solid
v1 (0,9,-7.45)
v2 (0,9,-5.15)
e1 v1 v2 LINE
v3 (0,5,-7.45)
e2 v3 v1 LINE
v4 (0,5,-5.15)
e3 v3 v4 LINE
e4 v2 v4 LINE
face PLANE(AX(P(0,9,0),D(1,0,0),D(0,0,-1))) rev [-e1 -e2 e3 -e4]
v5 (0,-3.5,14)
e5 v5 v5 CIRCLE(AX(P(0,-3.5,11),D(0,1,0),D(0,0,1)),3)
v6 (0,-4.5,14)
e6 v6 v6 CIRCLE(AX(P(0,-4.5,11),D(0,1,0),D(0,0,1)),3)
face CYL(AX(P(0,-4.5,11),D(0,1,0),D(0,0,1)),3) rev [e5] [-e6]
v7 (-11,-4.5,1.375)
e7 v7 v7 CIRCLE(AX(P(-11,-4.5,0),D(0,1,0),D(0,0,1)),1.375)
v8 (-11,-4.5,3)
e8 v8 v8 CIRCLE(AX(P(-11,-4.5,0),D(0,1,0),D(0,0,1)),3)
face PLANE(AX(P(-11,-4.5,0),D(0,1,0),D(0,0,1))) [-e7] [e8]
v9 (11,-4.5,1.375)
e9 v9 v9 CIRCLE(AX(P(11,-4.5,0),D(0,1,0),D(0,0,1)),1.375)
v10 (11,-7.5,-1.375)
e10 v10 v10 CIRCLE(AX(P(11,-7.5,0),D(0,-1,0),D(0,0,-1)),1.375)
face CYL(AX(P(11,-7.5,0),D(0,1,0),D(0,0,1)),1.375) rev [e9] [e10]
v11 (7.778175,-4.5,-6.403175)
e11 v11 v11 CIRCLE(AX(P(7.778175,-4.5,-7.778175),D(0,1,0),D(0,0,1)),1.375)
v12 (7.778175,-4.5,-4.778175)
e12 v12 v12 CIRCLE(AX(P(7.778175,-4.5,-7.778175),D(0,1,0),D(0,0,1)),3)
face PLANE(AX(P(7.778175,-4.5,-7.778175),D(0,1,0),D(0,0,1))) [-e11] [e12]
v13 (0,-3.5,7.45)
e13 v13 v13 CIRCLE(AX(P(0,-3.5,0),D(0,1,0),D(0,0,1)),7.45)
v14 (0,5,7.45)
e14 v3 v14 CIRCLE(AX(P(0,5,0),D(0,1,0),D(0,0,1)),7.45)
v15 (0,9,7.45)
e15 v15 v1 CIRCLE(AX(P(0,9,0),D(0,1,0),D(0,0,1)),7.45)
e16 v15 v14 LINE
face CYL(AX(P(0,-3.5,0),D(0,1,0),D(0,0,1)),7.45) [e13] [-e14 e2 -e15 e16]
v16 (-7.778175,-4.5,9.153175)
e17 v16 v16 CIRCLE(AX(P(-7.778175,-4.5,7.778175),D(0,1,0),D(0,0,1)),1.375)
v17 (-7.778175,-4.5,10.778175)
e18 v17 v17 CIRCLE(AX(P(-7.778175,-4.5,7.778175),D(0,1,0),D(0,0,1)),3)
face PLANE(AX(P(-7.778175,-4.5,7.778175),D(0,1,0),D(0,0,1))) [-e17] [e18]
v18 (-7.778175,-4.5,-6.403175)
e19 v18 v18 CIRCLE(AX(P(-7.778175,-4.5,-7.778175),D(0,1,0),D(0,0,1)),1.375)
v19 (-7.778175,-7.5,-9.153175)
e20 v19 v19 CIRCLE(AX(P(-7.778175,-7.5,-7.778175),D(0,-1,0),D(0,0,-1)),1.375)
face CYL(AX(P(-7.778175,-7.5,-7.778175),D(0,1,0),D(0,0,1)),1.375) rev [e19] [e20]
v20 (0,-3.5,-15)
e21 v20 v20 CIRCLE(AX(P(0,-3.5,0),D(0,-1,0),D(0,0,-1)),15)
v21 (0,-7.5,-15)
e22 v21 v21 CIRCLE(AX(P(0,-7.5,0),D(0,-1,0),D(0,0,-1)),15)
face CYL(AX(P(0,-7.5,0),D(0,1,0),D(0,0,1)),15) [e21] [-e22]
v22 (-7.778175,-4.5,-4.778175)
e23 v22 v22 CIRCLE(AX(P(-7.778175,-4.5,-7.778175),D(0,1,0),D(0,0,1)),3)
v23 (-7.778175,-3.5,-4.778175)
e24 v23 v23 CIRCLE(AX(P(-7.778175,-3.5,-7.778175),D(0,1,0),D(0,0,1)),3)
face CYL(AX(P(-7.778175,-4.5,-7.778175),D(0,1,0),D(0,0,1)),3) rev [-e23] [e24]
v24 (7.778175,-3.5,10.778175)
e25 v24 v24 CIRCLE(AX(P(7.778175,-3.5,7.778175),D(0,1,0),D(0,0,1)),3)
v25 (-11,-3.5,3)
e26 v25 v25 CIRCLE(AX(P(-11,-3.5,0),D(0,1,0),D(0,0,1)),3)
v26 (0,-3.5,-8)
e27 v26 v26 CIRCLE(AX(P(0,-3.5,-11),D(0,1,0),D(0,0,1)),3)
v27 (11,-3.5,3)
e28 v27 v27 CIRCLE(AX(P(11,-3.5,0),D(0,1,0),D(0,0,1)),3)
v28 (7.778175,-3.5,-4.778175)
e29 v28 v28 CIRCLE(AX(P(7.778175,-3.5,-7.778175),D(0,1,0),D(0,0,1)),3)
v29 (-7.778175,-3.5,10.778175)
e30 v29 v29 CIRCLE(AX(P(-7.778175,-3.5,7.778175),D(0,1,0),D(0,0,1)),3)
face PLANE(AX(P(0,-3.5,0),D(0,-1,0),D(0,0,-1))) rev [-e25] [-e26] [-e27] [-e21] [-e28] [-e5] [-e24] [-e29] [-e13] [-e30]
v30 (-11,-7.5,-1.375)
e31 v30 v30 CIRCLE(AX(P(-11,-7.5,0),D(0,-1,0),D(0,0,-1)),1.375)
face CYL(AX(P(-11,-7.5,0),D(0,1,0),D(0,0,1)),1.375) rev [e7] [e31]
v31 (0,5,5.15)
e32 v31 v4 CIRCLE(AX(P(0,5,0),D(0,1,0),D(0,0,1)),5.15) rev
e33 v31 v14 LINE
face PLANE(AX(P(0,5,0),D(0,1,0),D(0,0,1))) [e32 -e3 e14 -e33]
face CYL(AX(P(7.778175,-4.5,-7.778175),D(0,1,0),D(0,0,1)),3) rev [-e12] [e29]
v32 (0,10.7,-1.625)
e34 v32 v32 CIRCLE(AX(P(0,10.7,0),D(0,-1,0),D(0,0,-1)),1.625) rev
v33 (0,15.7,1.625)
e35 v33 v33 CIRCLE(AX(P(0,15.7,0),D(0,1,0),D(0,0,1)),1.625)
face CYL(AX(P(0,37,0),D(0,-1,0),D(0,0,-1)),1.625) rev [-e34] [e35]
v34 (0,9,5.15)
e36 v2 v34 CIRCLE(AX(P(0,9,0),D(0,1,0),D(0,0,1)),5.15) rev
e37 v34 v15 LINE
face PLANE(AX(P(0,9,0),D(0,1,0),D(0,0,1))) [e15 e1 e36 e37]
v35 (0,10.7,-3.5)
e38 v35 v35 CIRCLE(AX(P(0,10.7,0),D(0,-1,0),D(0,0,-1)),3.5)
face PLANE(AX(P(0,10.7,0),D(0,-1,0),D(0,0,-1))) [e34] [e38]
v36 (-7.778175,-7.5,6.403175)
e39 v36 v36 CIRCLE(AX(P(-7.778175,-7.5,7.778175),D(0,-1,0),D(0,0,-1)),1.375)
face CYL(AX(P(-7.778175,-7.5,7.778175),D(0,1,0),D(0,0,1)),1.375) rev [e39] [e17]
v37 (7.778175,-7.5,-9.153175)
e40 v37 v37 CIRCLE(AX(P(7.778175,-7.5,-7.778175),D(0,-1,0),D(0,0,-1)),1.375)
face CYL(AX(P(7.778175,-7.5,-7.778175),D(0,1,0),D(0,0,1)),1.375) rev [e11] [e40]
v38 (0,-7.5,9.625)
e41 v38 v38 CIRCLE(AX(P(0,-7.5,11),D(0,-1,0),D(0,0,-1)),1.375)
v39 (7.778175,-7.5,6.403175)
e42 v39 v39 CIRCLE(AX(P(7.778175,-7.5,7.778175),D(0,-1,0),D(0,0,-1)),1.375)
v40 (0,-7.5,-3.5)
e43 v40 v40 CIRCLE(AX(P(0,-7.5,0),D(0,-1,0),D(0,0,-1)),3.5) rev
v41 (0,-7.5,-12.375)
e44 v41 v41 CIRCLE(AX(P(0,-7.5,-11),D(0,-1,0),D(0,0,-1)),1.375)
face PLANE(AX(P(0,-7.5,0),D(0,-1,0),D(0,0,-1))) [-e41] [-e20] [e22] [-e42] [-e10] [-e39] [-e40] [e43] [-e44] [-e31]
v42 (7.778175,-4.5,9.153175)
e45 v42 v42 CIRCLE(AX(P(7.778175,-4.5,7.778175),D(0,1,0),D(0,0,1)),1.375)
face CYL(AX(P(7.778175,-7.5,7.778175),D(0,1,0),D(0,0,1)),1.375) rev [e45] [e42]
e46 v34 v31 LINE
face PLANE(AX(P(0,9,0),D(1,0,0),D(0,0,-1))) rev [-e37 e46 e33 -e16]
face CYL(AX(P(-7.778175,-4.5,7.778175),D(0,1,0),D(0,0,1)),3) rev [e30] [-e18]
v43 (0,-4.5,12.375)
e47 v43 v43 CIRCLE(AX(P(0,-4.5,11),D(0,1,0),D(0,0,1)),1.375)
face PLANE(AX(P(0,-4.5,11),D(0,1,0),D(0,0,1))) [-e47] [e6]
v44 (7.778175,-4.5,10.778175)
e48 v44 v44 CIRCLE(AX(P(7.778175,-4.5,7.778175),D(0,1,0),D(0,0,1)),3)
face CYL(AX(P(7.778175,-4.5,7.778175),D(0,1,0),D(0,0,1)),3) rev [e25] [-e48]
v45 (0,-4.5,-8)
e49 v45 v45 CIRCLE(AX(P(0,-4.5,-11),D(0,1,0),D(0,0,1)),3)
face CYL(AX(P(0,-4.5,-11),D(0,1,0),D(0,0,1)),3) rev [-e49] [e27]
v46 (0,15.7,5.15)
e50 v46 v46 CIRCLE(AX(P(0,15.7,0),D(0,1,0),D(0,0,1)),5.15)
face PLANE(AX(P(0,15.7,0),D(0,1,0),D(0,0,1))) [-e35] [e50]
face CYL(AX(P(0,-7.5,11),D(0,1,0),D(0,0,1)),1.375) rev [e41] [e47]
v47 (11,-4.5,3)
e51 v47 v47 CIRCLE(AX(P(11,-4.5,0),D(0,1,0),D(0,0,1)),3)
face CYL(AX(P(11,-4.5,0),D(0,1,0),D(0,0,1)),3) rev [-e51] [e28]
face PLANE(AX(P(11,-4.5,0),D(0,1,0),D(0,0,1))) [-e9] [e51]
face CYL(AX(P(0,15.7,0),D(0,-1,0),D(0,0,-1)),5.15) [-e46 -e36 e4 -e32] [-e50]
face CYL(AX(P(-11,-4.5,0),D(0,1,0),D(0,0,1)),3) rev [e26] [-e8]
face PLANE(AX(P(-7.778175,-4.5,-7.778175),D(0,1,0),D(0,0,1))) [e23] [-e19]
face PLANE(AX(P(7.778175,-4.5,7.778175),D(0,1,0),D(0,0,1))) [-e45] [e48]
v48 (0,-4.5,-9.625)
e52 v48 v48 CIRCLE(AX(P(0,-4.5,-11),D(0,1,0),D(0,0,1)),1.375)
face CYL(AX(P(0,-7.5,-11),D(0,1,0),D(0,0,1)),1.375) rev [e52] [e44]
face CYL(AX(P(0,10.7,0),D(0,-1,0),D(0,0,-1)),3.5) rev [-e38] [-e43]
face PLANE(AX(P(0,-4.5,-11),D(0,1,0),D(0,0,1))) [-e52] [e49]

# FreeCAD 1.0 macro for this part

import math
import FreeCAD as App
import Part
import Sketcher

V = App.Vector
Q = App.Units.Quantity

doc = App.newDocument("Part")
body = doc.addObject("PartDesign::Body", "Body")

sketch1 = body.newObject("Sketcher::SketchObject", "Sketch")
sketch1.AttachmentSupport = (doc.getObject("XZ_Plane"), [""])
sketch1.MapMode = "FlatFace"
sketch1.addGeometry(Part.Circle(V(0, 0, 0), V(0, 0, 1), 8), False)
sketch1.addConstraint([
    Sketcher.Constraint("Coincident", 0, 3, -1, 1),
    Sketcher.Constraint("Diameter", 0, Q("15 mm")),
])
pad1 = body.newObject("PartDesign::Pad", "Pad")
pad1.Profile = sketch1
pad1.Length = 5
pad1.Reversed = True

sketch2 = body.newObject("Sketcher::SketchObject", "Sketch001")
sketch2.AttachmentSupport = (doc.getObject("XZ_Plane"), [""])
sketch2.MapMode = "FlatFace"
sketch2.addGeometry(Part.Circle(V(0, 0, 0), V(0, 0, 1), 5), False)
sketch2.addConstraint([
    Sketcher.Constraint("Coincident", 0, 3, -1, 1),
    Sketcher.Constraint("Diameter", 0, Q("10.3 mm")),
])
pad2 = body.newObject("PartDesign::Pad", "Pad001")
pad2.Profile = sketch2
pad2.Length = 15.7
pad2.Reversed = True

sketch3 = body.newObject("Sketcher::SketchObject", "Sketch002")
sketch3.AttachmentSupport = (doc.getObject("XZ_Plane"), [""])
sketch3.MapMode = "FlatFace"
sketch3.AttachmentOffset = App.Placement(V(0, 0, -5), App.Rotation())
sketch3.addGeometry([
    Part.ArcOfCircle(Part.Circle(V(0, 0, 0), V(0, 0, 1), 7.5), math.radians(-90), math.radians(0)),
    Part.LineSegment(V(0, -7.5, 0), V(0, -5.2, 0)),
    Part.ArcOfCircle(Part.Circle(V(0, 0, 0), V(0, 0, 1), 5.2), math.radians(-90), math.radians(0)),
    Part.ArcOfCircle(Part.Circle(V(0, 0, 0), V(0, 0, 1), 5.2), math.radians(0), math.radians(90)),
    Part.LineSegment(V(0, 5.2, 0), V(0, 7.5, 0)),
    Part.ArcOfCircle(Part.Circle(V(0, 0, 0), V(0, 0, 1), 7.5), math.radians(0), math.radians(90)),
], False)
sketch3.addConstraint([
    Sketcher.Constraint("Coincident", 0, 1, 1, 1),
    Sketcher.Constraint("Coincident", 1, 2, 2, 1),
    Sketcher.Constraint("Tangent", 2, 2, 3, 1),
    Sketcher.Constraint("Coincident", 3, 2, 4, 1),
    Sketcher.Constraint("Coincident", 4, 2, 5, 2),
    Sketcher.Constraint("Tangent", 5, 1, 0, 2),
    Sketcher.Constraint("Vertical", 1),
    Sketcher.Constraint("Vertical", 4),
    Sketcher.Constraint("Coincident", 0, 3, -1, 1),
    Sketcher.Constraint("Coincident", 2, 3, -1, 1),
    Sketcher.Constraint("Equal", 2, 3),
    Sketcher.Constraint("Equal", 0, 5),
    Sketcher.Constraint("PointOnObject", 0, 1, -2),
    Sketcher.Constraint("PointOnObject", 2, 2, -1),
    Sketcher.Constraint("PointOnObject", 3, 2, -2),
    Sketcher.Constraint("PointOnObject", 5, 1, -1),
    Sketcher.Constraint("Radius", 0, Q("7.5 mm")),
    Sketcher.Constraint("Radius", 2, Q("5.15 mm")),
])
pad3 = body.newObject("PartDesign::Pad", "Pad002")
pad3.Profile = sketch3
pad3.Length = 4
pad3.Reversed = True

sketch4 = body.newObject("Sketcher::SketchObject", "Sketch003")
sketch4.AttachmentSupport = (doc.getObject("XZ_Plane"), [""])
sketch4.MapMode = "FlatFace"
sketch4.addGeometry(Part.Circle(V(0, 0, 0), V(0, 0, 1), 1.6), False)
sketch4.addConstraint([
    Sketcher.Constraint("Coincident", 0, 3, -1, 1),
    Sketcher.Constraint("Diameter", 0, Q("3.25 mm")),
])
pocket1 = body.newObject("PartDesign::Pocket", "Pocket")
pocket1.Profile = sketch4
pocket1.Length = 37

sketch5 = body.newObject("Sketcher::SketchObject", "Sketch004")
sketch5.AttachmentSupport = (doc.getObject("XZ_Plane"), [""])
sketch5.MapMode = "FlatFace"
sketch5.addGeometry(Part.Circle(V(0, 0, 0), V(0, 0, 1), 3.5), False)
sketch5.addConstraint([
    Sketcher.Constraint("Coincident", 0, 3, -1, 1),
    Sketcher.Constraint("Diameter", 0, Q("7 mm")),
])
pocket2 = body.newObject("PartDesign::Pocket", "Pocket001")
pocket2.Profile = sketch5
pocket2.Length = 10.7

sketch6 = body.newObject("Sketcher::SketchObject", "Sketch005")
sketch6.AttachmentSupport = (doc.getObject("XZ_Plane"), [""])
sketch6.MapMode = "FlatFace"
sketch6.AttachmentOffset = App.Placement(V(0, 0, 3.5), App.Rotation())
sketch6.addGeometry([
    Part.Circle(V(0, 0, 0), V(0, 0, 1), 7.5),
    Part.Circle(V(0, 0, 0), V(0, 0, 1), 3.5),
], False)
sketch6.addConstraint([
    Sketcher.Constraint("Coincident", 0, 3, -1, 1),
    Sketcher.Constraint("Coincident", 1, 3, -1, 1),
    Sketcher.Constraint("Diameter", 0, Q("15 mm")),
    Sketcher.Constraint("Diameter", 1, Q("7 mm")),
])
pad4 = body.newObject("PartDesign::Pad", "Pad003")
pad4.Profile = sketch6
pad4.Length = 3.5
pad4.Reversed = True

sketch7 = body.newObject("Sketcher::SketchObject", "Sketch006")
sketch7.AttachmentSupport = (doc.getObject("XZ_Plane"), [""])
sketch7.MapMode = "FlatFace"
sketch7.AttachmentOffset = App.Placement(V(0, 0, 7.5), App.Rotation())
sketch7.addGeometry([
    Part.Circle(V(0, 0, 0), V(0, 0, 1), 15),
    Part.Circle(V(-7.8, 7.8, 0), V(0, 0, 1), 1.4),
    Part.Circle(V(0, 11, 0), V(0, 0, 1), 1.4),
    Part.Circle(V(-11, 0, 0), V(0, 0, 1), 1.4),
    Part.Circle(V(-7.8, -7.8, 0), V(0, 0, 1), 1.4),
    Part.Circle(V(7.8, 7.8, 0), V(0, 0, 1), 1.4),
    Part.Circle(V(11, 0, 0), V(0, 0, 1), 1.4),
    Part.Circle(V(0, 0, 0), V(0, 0, 1), 3.5),
    Part.Circle(V(0, -11, 0), V(0, 0, 1), 1.4),
    Part.Circle(V(7.8, -7.8, 0), V(0, 0, 1), 1.4),
], False)
sketch7.addConstraint([
    Sketcher.Constraint("Coincident", 0, 3, -1, 1),
    Sketcher.Constraint("Coincident", 7, 3, -1, 1),
    Sketcher.Constraint("Equal", 1, 2),
    Sketcher.Constraint("Equal", 2, 3),
    Sketcher.Constraint("Equal", 3, 4),
    Sketcher.Constraint("Equal", 4, 5),
    Sketcher.Constraint("Equal", 5, 6),
    Sketcher.Constraint("Equal", 6, 8),
    Sketcher.Constraint("Equal", 8, 9),
    Sketcher.Constraint("Symmetric", 4, 3, 5, 3, -1, 1),
    Sketcher.Constraint("Symmetric", 3, 3, 6, 3, -1, 1),
    Sketcher.Constraint("Symmetric", 2, 3, 8, 3, -1, 1),
    Sketcher.Constraint("Symmetric", 1, 3, 9, 3, -1, 1),
    Sketcher.Constraint("Symmetric", 1, 3, 5, 3, -2),
    Sketcher.Constraint("PointOnObject", 2, 3, -2),
    Sketcher.Constraint("PointOnObject", 3, 3, -1),
    Sketcher.Constraint("Diameter", 0, Q("30 mm")),
    Sketcher.Constraint("Diameter", 7, Q("7 mm")),
    Sketcher.Constraint("Diameter", 1, Q("2.75 mm")),
    Sketcher.Constraint("DistanceY", -1, 1, 2, 3, Q("11 mm")),
    Sketcher.Constraint("DistanceX", 3, 3, -1, 1, Q("11 mm")),
    Sketcher.Constraint("DistanceY", 4, 3, 1, 3, Q("15.556349 mm")),
    Sketcher.Constraint("DistanceX", 1, 3, 5, 3, Q("15.556349 mm")),
])
pad5 = body.newObject("PartDesign::Pad", "Pad004")
pad5.Profile = sketch7
pad5.Length = 4
pad5.Reversed = True

sketch8 = body.newObject("Sketcher::SketchObject", "Sketch007")
sketch8.AttachmentSupport = (doc.getObject("XZ_Plane"), [""])
sketch8.MapMode = "FlatFace"
sketch8.AttachmentOffset = App.Placement(V(0, 0, 3.5), App.Rotation())
sketch8.addGeometry([
    Part.Circle(V(-11, 0, 0), V(0, 0, 1), 3),
    Part.Circle(V(-7.8, -7.8, 0), V(0, 0, 1), 3),
    Part.Circle(V(0, -11, 0), V(0, 0, 1), 3),
    Part.Circle(V(7.8, -7.8, 0), V(0, 0, 1), 3),
    Part.Circle(V(11, 0, 0), V(0, 0, 1), 3),
    Part.Circle(V(7.8, 7.8, 0), V(0, 0, 1), 3),
    Part.Circle(V(0, 11, 0), V(0, 0, 1), 3),
    Part.Circle(V(-7.8, 7.8, 0), V(0, 0, 1), 3),
], False)
sketch8.addConstraint([
    Sketcher.Constraint("Equal", 0, 1),
    Sketcher.Constraint("Equal", 1, 2),
    Sketcher.Constraint("Equal", 2, 3),
    Sketcher.Constraint("Equal", 3, 4),
    Sketcher.Constraint("Equal", 4, 5),
    Sketcher.Constraint("Equal", 5, 6),
    Sketcher.Constraint("Equal", 6, 7),
    Sketcher.Constraint("Symmetric", 0, 3, 4, 3, -1, 1),
    Sketcher.Constraint("Symmetric", 1, 3, 5, 3, -1, 1),
    Sketcher.Constraint("Symmetric", 2, 3, 6, 3, -1, 1),
    Sketcher.Constraint("Symmetric", 3, 3, 7, 3, -1, 1),
    Sketcher.Constraint("Symmetric", 1, 3, 3, 3, -2),
    Sketcher.Constraint("PointOnObject", 0, 3, -1),
    Sketcher.Constraint("PointOnObject", 2, 3, -2),
    Sketcher.Constraint("Diameter", 0, Q("6 mm")),
    Sketcher.Constraint("DistanceX", 0, 3, -1, 1, Q("11 mm")),
    Sketcher.Constraint("DistanceY", 2, 3, -1, 1, Q("11 mm")),
    Sketcher.Constraint("DistanceX", 1, 3, 3, 3, Q("15.556349 mm")),
    Sketcher.Constraint("DistanceY", 3, 3, 5, 3, Q("15.556349 mm")),
])
pocket3 = body.newObject("PartDesign::Pocket", "Pocket002")
pocket3.Profile = sketch8
pocket3.Length = 1
pocket3.Reversed = True

sketch9 = body.newObject("Sketcher::SketchObject", "Sketch008")
sketch9.AttachmentSupport = (doc.getObject("XZ_Plane"), [""])
sketch9.MapMode = "FlatFace"
sketch9.AttachmentOffset = App.Placement(V(0, 0, 3.5), App.Rotation())
sketch9.addGeometry([
    Part.Circle(V(0, 0, 0), V(0, 0, 1), 8),
    Part.Circle(V(0, 0, 0), V(0, 0, 1), 7),
], False)
sketch9.addConstraint([
    Sketcher.Constraint("Coincident", 0, 3, -1, 1),
    Sketcher.Constraint("Coincident", 1, 3, -1, 1),
    Sketcher.Constraint("Diameter", 0, Q("15 mm")),
    Sketcher.Constraint("Diameter", 1, Q("14.9 mm")),
])
pocket4 = body.newObject("PartDesign::Pocket", "Pocket003")
pocket4.Profile = sketch9
pocket4.Length = 12.5

doc.recompute()
